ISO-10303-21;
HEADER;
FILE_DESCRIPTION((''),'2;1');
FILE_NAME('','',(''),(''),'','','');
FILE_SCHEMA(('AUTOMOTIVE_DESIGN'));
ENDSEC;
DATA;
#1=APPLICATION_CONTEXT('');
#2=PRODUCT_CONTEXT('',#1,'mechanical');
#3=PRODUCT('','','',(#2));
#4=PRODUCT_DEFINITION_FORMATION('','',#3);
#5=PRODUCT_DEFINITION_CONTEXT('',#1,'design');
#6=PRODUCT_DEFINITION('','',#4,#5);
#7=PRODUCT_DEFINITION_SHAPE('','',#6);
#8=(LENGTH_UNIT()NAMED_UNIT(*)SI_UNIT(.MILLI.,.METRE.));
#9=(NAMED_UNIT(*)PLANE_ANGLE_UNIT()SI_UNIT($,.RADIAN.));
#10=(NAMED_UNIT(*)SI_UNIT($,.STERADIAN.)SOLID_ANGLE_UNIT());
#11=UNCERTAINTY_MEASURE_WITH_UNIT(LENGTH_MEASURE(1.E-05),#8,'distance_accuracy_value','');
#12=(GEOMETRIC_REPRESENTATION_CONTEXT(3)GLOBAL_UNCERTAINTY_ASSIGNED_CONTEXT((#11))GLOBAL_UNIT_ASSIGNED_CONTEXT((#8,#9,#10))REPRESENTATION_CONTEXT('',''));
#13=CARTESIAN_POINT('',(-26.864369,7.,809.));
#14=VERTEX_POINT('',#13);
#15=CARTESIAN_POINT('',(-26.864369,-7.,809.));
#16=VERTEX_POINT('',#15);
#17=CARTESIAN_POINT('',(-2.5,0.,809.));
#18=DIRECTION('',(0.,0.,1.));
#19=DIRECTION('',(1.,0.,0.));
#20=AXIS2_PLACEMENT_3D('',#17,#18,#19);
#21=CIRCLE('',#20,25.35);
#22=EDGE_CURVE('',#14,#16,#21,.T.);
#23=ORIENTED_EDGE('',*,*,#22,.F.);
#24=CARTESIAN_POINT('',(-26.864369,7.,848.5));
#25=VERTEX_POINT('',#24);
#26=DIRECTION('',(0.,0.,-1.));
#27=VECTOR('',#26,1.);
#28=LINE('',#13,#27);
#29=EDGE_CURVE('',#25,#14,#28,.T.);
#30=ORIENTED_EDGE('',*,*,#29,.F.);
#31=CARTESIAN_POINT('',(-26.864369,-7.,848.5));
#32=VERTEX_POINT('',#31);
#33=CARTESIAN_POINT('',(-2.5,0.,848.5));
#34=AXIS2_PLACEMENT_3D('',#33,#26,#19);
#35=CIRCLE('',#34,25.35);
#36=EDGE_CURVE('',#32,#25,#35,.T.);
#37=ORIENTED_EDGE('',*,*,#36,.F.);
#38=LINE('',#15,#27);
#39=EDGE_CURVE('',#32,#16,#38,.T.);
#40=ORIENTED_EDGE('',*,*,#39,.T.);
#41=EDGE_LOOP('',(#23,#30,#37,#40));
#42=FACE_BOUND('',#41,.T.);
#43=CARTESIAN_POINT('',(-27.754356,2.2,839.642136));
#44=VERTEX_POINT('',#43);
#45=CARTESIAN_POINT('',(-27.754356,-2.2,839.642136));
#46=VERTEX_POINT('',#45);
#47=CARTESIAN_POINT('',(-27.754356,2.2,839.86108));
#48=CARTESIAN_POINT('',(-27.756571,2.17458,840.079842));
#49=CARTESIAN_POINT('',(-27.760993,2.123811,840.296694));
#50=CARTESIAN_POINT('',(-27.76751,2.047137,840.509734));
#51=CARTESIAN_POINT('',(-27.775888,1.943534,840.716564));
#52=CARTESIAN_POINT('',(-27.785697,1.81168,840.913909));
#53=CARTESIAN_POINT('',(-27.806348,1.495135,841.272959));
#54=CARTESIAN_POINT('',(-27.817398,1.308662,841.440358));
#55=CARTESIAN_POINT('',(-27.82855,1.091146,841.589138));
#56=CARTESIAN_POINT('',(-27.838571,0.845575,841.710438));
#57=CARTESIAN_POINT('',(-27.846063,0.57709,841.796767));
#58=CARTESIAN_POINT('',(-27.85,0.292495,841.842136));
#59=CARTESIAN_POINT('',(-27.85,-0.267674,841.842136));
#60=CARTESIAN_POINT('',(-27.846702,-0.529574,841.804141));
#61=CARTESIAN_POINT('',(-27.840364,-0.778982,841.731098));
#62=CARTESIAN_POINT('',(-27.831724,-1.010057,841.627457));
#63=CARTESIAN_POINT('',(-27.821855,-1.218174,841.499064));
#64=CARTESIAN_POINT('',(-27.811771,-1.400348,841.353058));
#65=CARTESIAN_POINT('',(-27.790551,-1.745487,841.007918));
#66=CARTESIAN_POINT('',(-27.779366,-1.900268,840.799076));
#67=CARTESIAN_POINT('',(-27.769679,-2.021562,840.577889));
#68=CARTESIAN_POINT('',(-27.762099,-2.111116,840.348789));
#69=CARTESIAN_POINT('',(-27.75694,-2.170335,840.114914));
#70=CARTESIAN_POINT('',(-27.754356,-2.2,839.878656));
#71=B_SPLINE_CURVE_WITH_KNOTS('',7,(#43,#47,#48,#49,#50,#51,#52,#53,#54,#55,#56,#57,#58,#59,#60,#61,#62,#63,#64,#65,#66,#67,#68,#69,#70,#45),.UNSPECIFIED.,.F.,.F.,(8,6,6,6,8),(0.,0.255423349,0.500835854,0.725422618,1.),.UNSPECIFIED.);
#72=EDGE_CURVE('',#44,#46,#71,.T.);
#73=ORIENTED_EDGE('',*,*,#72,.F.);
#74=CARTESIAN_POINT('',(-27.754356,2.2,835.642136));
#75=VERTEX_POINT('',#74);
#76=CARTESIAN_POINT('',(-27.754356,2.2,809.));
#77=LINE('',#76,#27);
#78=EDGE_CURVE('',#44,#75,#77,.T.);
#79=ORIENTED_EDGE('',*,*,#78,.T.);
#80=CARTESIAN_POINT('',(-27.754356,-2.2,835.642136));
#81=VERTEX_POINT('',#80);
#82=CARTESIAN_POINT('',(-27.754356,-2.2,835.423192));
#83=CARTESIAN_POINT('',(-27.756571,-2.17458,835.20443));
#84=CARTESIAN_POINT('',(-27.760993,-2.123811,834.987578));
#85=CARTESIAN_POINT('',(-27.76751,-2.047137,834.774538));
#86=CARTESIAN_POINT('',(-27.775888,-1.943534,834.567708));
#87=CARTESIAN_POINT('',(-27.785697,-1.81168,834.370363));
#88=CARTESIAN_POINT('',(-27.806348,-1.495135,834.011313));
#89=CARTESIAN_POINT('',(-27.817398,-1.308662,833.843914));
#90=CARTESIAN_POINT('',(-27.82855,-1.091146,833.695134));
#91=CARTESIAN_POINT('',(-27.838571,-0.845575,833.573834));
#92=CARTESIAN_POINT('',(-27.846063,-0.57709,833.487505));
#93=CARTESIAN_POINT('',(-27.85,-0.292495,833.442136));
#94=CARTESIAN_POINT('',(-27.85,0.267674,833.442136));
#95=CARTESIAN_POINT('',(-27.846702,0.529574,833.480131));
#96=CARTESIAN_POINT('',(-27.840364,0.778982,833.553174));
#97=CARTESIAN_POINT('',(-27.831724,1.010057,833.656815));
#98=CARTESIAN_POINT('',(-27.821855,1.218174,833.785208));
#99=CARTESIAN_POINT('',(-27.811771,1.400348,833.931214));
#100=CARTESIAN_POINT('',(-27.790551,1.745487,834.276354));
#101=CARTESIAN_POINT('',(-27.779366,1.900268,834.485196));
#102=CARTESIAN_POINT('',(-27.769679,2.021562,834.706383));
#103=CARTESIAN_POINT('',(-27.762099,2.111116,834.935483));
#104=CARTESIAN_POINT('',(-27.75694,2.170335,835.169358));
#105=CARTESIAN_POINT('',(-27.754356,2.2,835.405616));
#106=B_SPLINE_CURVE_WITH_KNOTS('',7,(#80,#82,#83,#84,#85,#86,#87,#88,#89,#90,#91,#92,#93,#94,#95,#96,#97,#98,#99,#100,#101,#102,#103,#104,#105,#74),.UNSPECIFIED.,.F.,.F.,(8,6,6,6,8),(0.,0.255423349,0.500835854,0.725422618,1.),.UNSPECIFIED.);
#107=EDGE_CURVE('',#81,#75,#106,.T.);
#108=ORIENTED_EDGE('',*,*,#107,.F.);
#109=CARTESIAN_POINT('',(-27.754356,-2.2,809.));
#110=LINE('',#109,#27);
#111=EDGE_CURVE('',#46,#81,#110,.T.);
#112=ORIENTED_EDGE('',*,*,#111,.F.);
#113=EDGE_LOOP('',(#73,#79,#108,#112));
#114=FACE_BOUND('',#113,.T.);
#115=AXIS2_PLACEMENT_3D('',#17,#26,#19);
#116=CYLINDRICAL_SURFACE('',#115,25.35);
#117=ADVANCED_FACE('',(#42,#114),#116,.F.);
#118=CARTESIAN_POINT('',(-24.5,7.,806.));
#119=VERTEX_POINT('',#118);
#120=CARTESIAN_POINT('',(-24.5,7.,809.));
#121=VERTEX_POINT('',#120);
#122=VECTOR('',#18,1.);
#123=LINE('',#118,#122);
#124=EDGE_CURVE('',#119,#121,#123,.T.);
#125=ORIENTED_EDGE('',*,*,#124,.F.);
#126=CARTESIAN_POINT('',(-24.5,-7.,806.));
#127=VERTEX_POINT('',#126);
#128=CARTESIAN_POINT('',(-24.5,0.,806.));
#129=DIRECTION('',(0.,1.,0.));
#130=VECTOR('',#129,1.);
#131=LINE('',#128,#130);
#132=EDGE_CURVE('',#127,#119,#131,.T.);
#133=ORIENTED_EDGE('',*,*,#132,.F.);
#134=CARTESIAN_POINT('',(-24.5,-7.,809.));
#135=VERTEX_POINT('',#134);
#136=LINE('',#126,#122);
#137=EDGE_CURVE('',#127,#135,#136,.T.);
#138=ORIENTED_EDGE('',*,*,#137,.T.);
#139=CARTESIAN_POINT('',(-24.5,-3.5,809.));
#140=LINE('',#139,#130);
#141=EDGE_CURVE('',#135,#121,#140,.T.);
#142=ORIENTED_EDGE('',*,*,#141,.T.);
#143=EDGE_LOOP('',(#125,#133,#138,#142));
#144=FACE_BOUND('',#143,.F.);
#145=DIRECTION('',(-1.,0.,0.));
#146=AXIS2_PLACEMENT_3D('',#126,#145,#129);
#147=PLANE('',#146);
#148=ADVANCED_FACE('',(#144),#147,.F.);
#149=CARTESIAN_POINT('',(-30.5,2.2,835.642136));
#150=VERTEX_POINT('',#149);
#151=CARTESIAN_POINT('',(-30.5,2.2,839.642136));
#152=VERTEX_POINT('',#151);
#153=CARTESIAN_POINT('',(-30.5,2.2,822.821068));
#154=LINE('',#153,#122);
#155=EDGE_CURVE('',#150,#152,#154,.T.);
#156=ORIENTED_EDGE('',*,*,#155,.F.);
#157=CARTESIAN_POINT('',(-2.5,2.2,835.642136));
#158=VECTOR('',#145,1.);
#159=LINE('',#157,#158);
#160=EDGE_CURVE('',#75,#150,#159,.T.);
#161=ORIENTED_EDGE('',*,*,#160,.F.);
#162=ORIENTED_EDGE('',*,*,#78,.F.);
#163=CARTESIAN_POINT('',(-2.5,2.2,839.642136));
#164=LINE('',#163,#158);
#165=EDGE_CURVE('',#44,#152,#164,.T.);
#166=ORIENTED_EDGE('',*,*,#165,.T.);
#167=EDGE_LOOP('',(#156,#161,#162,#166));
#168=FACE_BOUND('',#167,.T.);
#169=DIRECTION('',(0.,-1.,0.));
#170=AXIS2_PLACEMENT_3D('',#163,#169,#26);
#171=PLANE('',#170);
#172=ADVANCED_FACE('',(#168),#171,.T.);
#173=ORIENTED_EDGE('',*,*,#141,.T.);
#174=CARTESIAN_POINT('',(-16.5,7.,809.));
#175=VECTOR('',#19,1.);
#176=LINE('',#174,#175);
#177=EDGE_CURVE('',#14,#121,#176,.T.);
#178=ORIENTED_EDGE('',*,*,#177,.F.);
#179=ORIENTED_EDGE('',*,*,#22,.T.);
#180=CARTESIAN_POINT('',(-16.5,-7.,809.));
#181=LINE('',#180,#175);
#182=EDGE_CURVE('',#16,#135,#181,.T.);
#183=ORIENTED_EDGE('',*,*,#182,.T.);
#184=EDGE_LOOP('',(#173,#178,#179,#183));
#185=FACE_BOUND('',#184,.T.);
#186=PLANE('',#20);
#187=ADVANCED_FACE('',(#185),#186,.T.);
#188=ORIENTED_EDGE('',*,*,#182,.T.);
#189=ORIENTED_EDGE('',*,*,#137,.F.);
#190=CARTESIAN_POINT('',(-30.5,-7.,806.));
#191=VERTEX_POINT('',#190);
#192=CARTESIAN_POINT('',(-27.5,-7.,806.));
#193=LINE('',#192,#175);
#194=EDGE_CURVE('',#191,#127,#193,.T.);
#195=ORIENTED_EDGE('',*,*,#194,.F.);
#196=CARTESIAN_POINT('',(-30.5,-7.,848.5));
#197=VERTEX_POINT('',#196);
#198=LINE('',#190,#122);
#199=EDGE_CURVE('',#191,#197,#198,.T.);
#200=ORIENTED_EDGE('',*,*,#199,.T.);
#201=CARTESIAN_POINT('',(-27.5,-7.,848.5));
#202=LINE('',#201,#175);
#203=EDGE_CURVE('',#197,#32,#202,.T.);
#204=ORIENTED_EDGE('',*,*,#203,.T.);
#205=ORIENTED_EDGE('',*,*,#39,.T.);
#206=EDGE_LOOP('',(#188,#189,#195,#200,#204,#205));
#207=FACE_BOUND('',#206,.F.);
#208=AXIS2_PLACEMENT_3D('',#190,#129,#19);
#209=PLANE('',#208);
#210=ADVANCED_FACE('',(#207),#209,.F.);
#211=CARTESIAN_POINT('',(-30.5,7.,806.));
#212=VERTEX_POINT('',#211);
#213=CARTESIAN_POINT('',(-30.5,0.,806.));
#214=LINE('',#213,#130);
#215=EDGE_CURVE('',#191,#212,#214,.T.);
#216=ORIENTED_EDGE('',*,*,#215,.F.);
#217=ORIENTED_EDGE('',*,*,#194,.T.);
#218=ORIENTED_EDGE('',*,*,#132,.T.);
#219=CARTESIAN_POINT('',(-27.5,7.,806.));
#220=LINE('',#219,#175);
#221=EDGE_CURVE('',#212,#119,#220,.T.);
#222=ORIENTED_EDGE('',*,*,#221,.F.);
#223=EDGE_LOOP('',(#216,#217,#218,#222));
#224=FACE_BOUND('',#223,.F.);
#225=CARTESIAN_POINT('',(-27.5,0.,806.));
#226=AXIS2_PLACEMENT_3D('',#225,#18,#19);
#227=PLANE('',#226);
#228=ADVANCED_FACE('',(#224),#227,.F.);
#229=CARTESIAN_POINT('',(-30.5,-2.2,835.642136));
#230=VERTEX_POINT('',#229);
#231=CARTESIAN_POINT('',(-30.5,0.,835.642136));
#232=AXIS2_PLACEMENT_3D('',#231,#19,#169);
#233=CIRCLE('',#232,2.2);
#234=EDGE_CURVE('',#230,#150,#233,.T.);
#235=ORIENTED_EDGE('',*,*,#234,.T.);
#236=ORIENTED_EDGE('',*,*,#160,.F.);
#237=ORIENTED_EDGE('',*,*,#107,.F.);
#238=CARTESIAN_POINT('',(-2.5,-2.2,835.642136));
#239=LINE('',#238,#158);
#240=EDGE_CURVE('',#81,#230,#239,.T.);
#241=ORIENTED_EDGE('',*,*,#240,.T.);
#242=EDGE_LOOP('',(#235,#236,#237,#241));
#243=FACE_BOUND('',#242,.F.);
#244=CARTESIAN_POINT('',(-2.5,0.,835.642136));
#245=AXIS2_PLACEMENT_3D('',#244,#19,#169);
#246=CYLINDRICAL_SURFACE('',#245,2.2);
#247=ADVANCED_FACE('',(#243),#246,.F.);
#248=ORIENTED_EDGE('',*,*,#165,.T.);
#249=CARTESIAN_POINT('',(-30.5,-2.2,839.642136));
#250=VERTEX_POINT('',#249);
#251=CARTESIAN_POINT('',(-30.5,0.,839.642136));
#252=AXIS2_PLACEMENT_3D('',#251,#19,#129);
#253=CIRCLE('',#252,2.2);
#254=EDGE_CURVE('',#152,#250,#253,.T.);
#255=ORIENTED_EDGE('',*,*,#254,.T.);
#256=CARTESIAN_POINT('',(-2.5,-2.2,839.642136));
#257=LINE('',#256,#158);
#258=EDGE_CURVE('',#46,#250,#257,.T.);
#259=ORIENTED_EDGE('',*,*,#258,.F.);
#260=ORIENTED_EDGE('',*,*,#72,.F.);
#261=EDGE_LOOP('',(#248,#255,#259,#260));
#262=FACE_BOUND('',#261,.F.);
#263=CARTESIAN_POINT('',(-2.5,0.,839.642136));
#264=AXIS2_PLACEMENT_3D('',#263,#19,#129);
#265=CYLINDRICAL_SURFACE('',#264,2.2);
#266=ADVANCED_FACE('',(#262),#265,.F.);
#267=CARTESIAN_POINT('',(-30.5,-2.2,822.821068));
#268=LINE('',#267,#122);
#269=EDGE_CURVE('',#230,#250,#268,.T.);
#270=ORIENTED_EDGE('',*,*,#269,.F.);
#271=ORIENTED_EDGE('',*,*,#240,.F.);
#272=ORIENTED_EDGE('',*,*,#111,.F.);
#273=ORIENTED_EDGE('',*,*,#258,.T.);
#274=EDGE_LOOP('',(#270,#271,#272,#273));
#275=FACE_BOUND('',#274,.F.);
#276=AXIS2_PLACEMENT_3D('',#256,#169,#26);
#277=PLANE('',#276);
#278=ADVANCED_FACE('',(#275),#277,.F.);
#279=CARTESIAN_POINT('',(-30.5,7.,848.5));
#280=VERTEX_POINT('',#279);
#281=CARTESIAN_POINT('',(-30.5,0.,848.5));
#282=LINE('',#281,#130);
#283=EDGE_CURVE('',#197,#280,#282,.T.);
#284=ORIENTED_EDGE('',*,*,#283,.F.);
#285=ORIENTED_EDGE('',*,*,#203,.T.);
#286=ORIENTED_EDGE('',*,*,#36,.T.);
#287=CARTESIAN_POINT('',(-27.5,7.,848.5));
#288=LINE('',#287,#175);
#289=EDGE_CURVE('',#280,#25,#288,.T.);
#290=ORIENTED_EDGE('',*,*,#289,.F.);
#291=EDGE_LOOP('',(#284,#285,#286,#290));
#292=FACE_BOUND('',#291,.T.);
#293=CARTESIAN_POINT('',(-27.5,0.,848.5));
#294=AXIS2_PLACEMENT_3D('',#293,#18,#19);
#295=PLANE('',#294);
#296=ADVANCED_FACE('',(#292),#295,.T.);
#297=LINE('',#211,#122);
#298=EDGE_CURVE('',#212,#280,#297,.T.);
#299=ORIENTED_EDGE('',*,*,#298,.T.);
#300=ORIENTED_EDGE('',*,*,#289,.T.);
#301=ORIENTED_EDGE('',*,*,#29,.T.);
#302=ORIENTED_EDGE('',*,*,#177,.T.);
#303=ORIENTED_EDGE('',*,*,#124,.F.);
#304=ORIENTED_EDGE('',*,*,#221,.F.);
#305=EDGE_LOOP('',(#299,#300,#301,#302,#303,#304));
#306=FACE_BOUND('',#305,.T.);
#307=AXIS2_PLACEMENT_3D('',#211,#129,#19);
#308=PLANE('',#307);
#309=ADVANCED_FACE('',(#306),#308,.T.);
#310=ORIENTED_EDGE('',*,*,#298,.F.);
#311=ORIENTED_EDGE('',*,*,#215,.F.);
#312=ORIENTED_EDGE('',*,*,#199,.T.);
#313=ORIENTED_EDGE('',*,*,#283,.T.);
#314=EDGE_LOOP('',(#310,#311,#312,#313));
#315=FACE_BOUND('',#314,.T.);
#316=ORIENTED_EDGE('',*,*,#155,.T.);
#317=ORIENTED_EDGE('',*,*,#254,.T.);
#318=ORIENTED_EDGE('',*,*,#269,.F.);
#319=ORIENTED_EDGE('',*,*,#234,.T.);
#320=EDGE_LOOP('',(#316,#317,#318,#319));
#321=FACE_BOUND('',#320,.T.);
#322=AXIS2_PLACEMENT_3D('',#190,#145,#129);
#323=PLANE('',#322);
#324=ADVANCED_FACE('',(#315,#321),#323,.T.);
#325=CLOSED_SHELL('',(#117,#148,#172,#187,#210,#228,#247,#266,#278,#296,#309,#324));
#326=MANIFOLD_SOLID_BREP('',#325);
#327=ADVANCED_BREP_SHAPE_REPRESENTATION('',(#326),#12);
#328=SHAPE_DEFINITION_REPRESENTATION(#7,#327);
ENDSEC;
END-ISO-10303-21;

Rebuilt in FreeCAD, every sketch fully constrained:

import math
import FreeCAD as App
import Part
import Sketcher
Q = App.Units.Quantity

doc = App.newDocument("Part")
params = doc.addObject("Spreadsheet::Sheet", "Params")
for row, (alias, value) in enumerate([
    ("sketch1_width", "6 mm"),
    ("sketch1_height", "14 mm"),
    ("pad1_length", "42.5 mm"),
    ("sketch2_radius", "2.2 mm"),
    ("sketch2_height", "4 mm"),
    ("sketch3_diameter", "50.7 mm"),
    ("pocket2_length", "51.142136 mm"),
], start=1):
    params.set(f"A{row}", alias)
    params.set(f"B{row}", "=" + value)
    params.setAlias(f"B{row}", alias)

body = doc.addObject("PartDesign::Body", "Body")

# Sketch on XY plane
sketch1 = body.newObject("Sketcher::SketchObject", "Sketch")
sketch1.AttachmentSupport = (doc.getObject("XY_Plane"), [""])
sketch1.MapMode = "FlatFace"
sketch1.AttachmentOffset = App.Placement(App.Vector(0, 0, -42.142136), App.Rotation())
sketch1.addGeometry([
    Part.LineSegment(App.Vector(-28, 7, 0), App.Vector(-28, -7, 0)),
    Part.LineSegment(App.Vector(-28, -7, 0), App.Vector(-22, -7, 0)),
    Part.LineSegment(App.Vector(-22, -7, 0), App.Vector(-22, 7, 0)),
    Part.LineSegment(App.Vector(-22, 7, 0), App.Vector(-28, 7, 0)),
], False)
sketch1.addConstraint([
    Sketcher.Constraint("Coincident", 0, 2, 1, 1),
    Sketcher.Constraint("Coincident", 1, 2, 2, 1),
    Sketcher.Constraint("Coincident", 2, 2, 3, 1),
    Sketcher.Constraint("Coincident", 3, 2, 0, 1),
    Sketcher.Constraint("Vertical", 0),
    Sketcher.Constraint("Horizontal", 1),
    Sketcher.Constraint("Vertical", 2),
    Sketcher.Constraint("Horizontal", 3),
    Sketcher.Constraint("DistanceX", 1, 1, 1, 2, Q("6 mm")),
    Sketcher.Constraint("DistanceY", 0, 2, 0, 1, Q("14 mm")),
    Sketcher.Constraint("DistanceX", 0, 2, -1, 1, Q("28 mm")),
    Sketcher.Constraint("DistanceY", 0, 2, -1, 1, Q("7 mm")),
])
sketch1.setExpression("Constraints[8]", "Params.sketch1_width")
sketch1.setExpression("Constraints[9]", "Params.sketch1_height")
pad1 = body.newObject("PartDesign::Pad", "Pad")
pad1.Profile = sketch1
pad1.setExpression("Length", "Params.pad1_length")

# Sketch on YZ plane
sketch2 = body.newObject("Sketcher::SketchObject", "Sketch001")
sketch2.AttachmentSupport = (doc.getObject("YZ_Plane"), [""])
sketch2.MapMode = "FlatFace"
sketch2.addGeometry([
    Part.ArcOfCircle(Part.Circle(App.Vector(0, -8.5, 0), App.Vector(0, 0, 1), 2.2), math.radians(0), math.radians(180)),
    Part.LineSegment(App.Vector(-2.2, -8.5, 0), App.Vector(-2.2, -12.5, 0)),
    Part.ArcOfCircle(Part.Circle(App.Vector(0, -12.5, 0), App.Vector(0, 0, 1), 2.2), math.radians(180), math.radians(360)),
    Part.LineSegment(App.Vector(2.2, -12.5, 0), App.Vector(2.2, -8.5, 0)),
], False)
sketch2.addConstraint([
    Sketcher.Constraint("Tangent", 0, 2, 1, 1),
    Sketcher.Constraint("Tangent", 1, 2, 2, 1),
    Sketcher.Constraint("Tangent", 2, 2, 3, 1),
    Sketcher.Constraint("Tangent", 3, 2, 0, 1),
    Sketcher.Constraint("Vertical", 1),
    Sketcher.Constraint("Vertical", 3),
    Sketcher.Constraint("PointOnObject", 0, 3, -2),
    Sketcher.Constraint("Radius", 0, Q("2.2 mm")),
    Sketcher.Constraint("DistanceY", 1, 2, 1, 1, Q("4 mm")),
    Sketcher.Constraint("DistanceY", 0, 3, -1, 1, Q("8.5 mm")),
])
sketch2.setExpression("Constraints[7]", "Params.sketch2_radius")
sketch2.setExpression("Constraints[8]", "Params.sketch2_height")
pocket1 = body.newObject("PartDesign::Pocket", "Pocket")
pocket1.Profile = sketch2
pocket1.Type = "ThroughAll"

# Sketch on XY plane
sketch3 = body.newObject("Sketcher::SketchObject", "Sketch002")
sketch3.AttachmentSupport = (doc.getObject("XY_Plane"), [""])
sketch3.MapMode = "FlatFace"
sketch3.AttachmentOffset = App.Placement(App.Vector(0, 0, -39.142136), App.Rotation())
sketch3.addGeometry(Part.Circle(App.Vector(0, 0, 0), App.Vector(0, 0, 1), 25.35), False)
sketch3.addConstraint([
    Sketcher.Constraint("Coincident", 0, 3, -1, 1),
    Sketcher.Constraint("Diameter", 0, Q("50.7 mm")),
])
sketch3.setExpression("Constraints[1]", "Params.sketch3_diameter")
pocket2 = body.newObject("PartDesign::Pocket", "Pocket001")
pocket2.Profile = sketch3
pocket2.setExpression("Length", "Params.pocket2_length")
pocket2.Reversed = True
body2 = doc.addObject("PartDesign::Body", "Body001")
doc.recompute()

body.Placement = App.Placement(App.Vector(-2.5, 0, 848.142136), App.Rotation(App.Vector(0, 0, 1), 0))
boolean = body2.newObject("PartDesign::Boolean", "Boolean")
boolean.Type = "Fuse"
boolean.addObjects([body])

doc.recompute()
